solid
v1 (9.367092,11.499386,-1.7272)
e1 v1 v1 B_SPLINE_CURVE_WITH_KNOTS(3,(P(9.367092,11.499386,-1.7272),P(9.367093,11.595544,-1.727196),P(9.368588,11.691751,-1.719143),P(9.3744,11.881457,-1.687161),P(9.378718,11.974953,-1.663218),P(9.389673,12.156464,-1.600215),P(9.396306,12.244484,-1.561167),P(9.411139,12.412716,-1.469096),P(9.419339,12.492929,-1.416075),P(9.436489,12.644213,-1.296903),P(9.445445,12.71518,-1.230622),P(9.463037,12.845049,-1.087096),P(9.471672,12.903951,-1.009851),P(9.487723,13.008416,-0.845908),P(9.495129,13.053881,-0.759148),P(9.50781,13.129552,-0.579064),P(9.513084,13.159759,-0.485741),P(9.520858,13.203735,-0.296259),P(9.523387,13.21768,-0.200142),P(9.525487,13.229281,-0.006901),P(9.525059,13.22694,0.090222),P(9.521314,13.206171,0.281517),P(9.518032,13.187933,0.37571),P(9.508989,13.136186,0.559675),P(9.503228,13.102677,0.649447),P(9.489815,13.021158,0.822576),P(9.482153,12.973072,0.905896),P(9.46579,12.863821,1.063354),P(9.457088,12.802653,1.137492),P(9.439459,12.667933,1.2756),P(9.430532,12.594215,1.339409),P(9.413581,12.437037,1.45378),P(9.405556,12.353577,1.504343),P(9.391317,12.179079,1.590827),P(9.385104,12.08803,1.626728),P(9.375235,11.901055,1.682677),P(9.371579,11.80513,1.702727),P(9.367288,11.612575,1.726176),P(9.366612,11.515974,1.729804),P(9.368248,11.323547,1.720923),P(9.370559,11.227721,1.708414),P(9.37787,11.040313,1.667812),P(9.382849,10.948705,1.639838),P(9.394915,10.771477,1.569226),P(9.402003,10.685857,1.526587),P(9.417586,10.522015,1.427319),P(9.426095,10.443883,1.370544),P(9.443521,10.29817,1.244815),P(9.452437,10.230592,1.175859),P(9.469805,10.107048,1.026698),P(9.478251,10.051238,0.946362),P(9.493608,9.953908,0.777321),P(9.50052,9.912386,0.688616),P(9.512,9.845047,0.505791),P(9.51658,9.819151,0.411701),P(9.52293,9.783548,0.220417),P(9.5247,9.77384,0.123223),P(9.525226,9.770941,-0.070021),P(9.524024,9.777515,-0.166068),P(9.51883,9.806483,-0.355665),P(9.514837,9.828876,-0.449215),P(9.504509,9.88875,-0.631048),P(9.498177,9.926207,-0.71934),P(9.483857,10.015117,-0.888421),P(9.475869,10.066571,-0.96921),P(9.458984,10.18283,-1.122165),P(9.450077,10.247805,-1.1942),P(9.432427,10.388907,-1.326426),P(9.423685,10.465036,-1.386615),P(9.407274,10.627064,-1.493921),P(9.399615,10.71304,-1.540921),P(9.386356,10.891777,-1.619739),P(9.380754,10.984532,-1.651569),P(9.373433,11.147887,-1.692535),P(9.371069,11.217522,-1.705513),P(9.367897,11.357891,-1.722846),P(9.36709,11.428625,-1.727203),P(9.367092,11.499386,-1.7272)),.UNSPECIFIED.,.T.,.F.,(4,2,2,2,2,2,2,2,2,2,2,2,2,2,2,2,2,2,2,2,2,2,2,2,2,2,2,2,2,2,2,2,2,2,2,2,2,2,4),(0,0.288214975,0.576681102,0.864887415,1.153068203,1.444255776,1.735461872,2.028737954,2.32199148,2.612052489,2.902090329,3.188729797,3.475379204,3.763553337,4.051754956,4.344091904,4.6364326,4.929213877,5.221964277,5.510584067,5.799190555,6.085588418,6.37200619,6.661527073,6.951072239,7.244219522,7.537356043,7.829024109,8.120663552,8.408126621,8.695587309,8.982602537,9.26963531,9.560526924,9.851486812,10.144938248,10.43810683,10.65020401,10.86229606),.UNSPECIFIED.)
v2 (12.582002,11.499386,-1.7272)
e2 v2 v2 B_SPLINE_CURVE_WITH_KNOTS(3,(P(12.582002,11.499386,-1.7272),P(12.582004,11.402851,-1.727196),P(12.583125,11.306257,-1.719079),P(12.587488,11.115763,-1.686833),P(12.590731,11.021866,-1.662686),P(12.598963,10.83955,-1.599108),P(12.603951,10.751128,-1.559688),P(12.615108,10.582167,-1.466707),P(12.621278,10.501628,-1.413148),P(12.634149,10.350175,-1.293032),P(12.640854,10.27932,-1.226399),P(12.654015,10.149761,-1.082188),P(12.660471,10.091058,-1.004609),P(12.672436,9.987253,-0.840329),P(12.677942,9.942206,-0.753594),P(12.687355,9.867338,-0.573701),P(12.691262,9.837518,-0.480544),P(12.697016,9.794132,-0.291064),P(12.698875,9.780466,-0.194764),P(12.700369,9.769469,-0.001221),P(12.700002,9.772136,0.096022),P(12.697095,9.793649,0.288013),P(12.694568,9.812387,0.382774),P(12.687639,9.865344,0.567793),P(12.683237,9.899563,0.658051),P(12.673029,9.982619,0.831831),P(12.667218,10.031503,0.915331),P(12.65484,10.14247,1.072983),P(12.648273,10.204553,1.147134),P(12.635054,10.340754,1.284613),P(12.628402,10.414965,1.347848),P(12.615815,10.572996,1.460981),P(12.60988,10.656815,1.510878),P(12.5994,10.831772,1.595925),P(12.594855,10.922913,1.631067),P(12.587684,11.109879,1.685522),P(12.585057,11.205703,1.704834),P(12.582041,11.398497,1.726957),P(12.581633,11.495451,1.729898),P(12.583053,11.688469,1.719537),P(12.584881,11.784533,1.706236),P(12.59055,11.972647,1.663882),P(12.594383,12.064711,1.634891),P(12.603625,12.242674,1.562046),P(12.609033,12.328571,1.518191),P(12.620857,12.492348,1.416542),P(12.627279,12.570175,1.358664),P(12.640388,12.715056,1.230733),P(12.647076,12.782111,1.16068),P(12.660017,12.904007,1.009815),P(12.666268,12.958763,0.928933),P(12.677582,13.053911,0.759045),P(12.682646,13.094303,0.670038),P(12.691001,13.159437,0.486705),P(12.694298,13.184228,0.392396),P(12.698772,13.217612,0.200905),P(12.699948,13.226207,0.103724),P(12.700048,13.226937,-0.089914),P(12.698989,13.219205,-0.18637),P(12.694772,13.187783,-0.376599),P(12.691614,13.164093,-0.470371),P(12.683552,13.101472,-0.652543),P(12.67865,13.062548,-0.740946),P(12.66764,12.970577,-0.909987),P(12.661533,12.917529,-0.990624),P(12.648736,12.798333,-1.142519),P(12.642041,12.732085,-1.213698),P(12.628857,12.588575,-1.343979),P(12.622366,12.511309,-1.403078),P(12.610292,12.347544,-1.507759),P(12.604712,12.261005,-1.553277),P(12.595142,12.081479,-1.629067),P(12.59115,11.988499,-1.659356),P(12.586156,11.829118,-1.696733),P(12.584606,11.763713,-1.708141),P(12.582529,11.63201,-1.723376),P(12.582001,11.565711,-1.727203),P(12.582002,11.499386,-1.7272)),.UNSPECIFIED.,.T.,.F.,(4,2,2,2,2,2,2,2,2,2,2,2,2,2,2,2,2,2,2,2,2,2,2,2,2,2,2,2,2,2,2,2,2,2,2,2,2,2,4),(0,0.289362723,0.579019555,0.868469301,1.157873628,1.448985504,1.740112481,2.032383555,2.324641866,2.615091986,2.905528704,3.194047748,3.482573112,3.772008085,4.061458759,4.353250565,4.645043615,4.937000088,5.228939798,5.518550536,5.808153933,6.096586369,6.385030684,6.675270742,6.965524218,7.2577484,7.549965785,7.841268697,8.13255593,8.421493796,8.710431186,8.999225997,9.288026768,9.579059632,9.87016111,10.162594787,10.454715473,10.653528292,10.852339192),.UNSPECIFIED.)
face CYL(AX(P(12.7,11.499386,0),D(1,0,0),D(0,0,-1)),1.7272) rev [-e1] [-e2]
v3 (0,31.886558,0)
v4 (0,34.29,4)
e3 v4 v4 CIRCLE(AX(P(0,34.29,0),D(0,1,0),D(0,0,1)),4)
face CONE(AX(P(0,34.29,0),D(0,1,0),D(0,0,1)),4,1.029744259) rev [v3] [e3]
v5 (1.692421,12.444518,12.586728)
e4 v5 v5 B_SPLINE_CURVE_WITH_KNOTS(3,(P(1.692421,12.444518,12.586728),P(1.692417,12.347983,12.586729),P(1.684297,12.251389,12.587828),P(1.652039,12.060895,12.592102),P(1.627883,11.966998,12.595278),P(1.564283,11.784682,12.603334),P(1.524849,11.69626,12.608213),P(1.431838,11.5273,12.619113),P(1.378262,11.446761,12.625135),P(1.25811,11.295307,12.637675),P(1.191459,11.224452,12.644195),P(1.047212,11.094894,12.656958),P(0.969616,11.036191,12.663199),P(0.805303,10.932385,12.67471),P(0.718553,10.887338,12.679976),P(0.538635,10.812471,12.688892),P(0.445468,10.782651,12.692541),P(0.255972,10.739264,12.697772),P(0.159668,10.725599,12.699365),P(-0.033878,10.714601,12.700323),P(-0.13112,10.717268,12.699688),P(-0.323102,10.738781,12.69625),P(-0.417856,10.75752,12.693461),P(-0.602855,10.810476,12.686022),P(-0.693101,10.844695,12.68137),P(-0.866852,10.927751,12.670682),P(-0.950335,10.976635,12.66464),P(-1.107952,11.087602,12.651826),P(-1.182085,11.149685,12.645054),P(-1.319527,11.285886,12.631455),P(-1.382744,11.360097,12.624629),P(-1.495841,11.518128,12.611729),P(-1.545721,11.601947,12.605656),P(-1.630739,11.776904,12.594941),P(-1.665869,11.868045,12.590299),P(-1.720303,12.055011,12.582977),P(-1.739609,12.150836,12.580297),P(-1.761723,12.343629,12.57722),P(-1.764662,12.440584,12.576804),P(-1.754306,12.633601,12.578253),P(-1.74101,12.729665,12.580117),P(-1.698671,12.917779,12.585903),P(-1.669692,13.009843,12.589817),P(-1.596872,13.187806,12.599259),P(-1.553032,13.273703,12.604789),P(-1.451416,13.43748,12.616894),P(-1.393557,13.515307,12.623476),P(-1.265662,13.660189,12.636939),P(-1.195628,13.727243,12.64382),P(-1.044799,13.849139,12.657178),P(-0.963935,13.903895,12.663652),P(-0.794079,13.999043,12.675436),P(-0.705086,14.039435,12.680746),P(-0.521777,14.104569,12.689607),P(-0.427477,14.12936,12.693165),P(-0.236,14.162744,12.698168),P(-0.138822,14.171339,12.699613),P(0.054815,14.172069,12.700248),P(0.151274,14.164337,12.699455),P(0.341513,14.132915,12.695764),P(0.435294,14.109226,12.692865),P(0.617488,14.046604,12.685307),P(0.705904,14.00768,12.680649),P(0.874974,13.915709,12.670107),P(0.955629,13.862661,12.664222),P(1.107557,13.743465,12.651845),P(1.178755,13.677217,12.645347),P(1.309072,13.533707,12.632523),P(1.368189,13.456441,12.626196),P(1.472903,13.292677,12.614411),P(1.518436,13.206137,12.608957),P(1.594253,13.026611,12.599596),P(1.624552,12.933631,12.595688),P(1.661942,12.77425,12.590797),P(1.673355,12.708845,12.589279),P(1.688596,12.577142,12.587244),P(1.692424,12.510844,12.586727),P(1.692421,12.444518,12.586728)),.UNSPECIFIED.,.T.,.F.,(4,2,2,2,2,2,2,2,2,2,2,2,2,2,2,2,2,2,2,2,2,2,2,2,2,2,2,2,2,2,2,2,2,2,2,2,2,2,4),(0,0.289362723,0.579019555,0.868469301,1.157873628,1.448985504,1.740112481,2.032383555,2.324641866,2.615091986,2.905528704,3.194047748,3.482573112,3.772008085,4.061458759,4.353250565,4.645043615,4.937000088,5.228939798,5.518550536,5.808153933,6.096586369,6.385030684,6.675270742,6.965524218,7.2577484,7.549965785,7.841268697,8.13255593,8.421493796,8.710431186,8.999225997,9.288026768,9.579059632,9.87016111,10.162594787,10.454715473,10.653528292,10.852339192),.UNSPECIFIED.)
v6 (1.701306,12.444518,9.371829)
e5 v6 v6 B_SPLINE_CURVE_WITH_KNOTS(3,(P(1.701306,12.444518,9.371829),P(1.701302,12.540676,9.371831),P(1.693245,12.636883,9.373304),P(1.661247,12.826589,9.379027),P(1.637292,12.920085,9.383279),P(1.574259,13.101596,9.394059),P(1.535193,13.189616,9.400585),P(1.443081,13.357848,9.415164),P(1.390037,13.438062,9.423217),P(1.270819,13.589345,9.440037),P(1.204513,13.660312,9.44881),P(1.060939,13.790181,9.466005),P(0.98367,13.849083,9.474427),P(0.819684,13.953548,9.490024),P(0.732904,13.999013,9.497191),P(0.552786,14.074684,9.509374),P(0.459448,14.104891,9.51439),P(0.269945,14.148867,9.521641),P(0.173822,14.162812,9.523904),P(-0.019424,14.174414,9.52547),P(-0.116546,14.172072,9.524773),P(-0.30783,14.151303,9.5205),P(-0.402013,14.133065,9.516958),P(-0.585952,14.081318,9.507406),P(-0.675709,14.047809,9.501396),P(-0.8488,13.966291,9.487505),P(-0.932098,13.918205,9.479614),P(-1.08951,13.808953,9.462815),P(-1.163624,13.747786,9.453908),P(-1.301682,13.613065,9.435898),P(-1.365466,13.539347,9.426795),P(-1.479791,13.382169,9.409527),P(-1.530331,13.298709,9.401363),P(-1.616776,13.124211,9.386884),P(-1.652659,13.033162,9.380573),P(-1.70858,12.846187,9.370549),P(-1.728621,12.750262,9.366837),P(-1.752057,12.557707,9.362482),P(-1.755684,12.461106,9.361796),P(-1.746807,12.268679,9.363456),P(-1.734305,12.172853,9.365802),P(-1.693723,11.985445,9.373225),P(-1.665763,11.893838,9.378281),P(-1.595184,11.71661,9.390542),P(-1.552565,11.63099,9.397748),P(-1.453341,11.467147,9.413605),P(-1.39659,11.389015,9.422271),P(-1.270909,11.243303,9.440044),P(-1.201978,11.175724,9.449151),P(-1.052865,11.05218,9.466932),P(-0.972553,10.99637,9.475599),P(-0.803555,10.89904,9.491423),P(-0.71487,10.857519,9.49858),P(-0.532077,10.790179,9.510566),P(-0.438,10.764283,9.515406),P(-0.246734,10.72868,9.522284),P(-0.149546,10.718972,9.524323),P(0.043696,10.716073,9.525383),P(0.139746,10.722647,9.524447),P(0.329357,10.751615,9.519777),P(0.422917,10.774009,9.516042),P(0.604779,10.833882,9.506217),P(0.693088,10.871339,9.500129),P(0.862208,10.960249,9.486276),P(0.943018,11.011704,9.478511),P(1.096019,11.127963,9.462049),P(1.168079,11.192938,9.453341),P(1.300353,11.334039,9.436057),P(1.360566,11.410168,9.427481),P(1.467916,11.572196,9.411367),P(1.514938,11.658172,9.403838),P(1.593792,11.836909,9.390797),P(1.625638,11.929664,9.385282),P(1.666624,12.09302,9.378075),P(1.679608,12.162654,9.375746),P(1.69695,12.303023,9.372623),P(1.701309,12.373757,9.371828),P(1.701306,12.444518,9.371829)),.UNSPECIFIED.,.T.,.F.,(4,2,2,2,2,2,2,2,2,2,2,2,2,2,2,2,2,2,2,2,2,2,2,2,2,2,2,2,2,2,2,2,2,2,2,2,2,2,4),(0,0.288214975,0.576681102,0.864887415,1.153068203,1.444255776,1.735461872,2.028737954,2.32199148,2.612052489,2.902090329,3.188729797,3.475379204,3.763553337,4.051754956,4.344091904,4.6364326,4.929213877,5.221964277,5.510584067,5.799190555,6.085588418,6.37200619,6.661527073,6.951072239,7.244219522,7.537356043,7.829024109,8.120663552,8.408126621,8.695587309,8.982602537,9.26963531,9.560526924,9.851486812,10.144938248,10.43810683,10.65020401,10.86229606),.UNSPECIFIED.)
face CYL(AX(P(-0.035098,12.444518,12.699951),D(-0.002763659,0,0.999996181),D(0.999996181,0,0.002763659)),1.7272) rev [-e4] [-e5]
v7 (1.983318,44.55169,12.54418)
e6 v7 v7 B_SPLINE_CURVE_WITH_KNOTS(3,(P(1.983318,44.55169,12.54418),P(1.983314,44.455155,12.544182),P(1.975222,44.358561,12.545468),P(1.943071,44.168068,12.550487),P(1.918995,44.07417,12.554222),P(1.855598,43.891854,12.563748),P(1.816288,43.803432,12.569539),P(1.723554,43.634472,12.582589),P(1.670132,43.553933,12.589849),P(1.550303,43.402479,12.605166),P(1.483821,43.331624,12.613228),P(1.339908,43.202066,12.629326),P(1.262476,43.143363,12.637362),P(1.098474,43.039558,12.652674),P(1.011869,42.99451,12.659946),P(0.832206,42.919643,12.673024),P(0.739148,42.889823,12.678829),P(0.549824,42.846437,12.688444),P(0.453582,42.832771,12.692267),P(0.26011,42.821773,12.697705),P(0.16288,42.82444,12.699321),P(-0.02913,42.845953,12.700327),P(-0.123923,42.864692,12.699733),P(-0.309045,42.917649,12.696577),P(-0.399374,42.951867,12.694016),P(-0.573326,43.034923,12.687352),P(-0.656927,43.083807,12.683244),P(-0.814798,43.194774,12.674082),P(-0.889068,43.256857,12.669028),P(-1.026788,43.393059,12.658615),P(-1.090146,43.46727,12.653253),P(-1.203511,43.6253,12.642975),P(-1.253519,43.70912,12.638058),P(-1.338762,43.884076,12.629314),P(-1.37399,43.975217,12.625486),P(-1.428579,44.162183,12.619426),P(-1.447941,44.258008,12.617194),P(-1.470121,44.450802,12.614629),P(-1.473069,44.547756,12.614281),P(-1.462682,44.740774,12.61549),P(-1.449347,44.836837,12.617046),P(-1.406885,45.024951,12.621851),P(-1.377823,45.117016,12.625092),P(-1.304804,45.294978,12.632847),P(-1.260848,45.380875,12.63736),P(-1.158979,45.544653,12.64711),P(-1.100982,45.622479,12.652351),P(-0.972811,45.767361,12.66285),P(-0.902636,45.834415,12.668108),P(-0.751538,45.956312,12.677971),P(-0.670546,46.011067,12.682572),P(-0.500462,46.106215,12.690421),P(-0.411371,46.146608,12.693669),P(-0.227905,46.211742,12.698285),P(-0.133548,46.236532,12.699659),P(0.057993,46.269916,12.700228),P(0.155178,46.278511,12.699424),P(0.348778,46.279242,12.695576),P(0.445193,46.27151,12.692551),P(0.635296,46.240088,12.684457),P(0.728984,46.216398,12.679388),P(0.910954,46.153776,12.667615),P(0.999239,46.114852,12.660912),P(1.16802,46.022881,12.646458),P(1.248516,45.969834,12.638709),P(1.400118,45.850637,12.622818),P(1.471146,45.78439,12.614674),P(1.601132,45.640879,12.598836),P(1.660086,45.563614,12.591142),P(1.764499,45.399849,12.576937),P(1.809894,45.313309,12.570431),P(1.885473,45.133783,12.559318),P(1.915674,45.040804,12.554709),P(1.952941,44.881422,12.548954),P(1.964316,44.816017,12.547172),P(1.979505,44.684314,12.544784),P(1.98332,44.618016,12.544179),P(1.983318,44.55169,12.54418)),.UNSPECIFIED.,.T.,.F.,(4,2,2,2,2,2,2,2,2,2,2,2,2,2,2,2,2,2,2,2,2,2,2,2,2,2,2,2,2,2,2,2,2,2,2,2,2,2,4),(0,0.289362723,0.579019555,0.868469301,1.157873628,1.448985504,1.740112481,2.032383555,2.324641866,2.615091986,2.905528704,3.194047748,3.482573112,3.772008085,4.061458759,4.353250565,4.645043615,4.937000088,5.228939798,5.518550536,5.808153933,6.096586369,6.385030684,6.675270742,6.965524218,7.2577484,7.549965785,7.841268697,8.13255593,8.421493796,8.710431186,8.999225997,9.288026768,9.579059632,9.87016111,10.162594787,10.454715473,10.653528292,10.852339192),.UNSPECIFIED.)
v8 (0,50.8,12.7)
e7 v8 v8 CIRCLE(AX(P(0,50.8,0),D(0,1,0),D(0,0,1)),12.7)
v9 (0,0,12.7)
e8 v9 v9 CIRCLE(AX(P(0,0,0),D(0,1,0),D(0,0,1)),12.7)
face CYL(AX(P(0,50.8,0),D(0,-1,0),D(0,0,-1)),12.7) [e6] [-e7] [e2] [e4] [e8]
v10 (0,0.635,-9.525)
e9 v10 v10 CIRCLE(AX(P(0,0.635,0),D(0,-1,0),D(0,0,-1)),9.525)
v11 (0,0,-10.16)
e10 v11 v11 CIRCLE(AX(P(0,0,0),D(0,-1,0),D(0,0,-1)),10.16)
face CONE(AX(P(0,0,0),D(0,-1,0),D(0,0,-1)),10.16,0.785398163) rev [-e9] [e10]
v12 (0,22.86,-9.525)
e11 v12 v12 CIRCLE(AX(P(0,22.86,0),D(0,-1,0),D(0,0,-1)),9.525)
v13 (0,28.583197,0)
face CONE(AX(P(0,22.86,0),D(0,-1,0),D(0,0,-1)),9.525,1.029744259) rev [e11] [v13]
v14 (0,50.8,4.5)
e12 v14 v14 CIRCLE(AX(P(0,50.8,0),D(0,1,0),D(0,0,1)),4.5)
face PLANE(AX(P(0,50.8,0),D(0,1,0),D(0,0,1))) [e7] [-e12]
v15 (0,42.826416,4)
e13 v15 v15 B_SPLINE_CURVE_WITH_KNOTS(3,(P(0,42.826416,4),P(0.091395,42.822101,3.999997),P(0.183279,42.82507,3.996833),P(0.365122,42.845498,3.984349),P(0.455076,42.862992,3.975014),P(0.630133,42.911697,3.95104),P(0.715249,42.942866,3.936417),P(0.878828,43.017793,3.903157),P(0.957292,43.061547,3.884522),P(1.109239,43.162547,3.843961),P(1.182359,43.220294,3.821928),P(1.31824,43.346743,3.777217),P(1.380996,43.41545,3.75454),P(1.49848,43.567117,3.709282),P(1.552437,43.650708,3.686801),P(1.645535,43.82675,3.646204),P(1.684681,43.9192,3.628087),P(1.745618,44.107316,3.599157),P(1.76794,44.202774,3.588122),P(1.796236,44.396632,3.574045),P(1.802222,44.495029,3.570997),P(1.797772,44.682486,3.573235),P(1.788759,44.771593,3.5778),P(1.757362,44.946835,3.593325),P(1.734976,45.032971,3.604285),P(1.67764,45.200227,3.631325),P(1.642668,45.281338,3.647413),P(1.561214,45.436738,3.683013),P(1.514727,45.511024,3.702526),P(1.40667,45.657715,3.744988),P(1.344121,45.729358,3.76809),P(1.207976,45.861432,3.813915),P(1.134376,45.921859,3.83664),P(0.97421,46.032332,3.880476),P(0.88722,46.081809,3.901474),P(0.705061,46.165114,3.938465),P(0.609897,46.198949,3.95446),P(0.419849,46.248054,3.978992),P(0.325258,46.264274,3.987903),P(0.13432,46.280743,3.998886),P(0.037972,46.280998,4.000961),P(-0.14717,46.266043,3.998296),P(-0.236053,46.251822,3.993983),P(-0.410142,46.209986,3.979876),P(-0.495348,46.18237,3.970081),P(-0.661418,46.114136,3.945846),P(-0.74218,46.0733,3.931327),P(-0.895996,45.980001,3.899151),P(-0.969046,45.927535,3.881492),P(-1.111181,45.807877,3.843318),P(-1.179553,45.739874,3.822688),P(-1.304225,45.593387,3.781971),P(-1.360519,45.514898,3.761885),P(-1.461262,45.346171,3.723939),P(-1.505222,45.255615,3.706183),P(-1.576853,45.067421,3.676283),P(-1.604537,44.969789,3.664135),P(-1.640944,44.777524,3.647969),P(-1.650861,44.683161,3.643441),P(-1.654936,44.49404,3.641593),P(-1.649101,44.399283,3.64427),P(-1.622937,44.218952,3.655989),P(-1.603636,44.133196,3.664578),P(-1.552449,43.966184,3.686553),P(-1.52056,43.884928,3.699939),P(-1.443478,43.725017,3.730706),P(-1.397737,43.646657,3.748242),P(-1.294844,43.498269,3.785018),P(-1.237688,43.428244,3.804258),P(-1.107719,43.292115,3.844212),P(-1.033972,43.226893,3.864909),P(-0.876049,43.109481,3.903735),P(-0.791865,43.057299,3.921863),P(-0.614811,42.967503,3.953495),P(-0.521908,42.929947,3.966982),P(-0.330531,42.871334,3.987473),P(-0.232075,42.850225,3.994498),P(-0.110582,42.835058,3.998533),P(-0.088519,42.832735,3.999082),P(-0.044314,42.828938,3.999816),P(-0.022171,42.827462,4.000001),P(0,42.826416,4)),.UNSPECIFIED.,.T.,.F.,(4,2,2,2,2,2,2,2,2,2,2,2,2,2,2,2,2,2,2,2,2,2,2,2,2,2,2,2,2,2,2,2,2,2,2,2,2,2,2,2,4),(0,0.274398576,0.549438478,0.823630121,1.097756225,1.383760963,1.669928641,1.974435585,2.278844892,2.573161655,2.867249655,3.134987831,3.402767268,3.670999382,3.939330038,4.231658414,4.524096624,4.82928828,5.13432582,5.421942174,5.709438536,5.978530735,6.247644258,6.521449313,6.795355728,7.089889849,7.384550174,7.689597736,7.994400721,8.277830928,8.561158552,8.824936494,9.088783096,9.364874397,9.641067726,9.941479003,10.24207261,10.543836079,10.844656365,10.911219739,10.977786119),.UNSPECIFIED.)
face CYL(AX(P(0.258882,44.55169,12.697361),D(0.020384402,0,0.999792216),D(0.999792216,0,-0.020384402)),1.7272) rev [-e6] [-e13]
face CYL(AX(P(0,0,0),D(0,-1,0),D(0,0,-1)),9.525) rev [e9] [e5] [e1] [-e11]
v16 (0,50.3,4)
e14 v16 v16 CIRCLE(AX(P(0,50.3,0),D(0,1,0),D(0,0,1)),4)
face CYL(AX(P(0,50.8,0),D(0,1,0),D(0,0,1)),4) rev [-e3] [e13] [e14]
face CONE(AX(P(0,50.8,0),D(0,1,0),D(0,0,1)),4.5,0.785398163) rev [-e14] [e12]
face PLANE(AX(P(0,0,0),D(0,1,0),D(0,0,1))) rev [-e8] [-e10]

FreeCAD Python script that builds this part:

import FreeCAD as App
import Part
import Sketcher

V = App.Vector
Q = App.Units.Quantity

doc = App.newDocument("Part")
body = doc.addObject("PartDesign::Body", "Body")

# Sketch on XZ plane
sketch1 = body.newObject("Sketcher::SketchObject", "Sketch")
sketch1.AttachmentSupport = (doc.getObject("XZ_Plane"), [""])
sketch1.MapMode = "FlatFace"
sketch1.addGeometry(Part.Circle(V(0, 0, 0), V(0, 0, 1), 13), False)
sketch1.addConstraint([
    Sketcher.Constraint("Coincident", 0, 3, -1, 1),
    Sketcher.Constraint("Diameter", 0, Q("1 in")),
])
pad1 = body.newObject("PartDesign::Pad", "Pad")
pad1.Profile = sketch1
pad1.Length = Q("2 in")
pad1.Reversed = True

# Sketch on XZ plane
sketch2 = body.newObject("Sketcher::SketchObject", "Sketch001")
sketch2.AttachmentSupport = (doc.getObject("XZ_Plane"), [""])
sketch2.MapMode = "FlatFace"
sketch2.AttachmentOffset = App.Placement(V(0, 0, -2 * 25.4), App.Rotation())
sketch2.addGeometry(Part.Circle(V(0, 0, 0), V(0, 0, 1), 4), False)
sketch2.addConstraint([
    Sketcher.Constraint("Coincident", 0, 3, -1, 1),
    Sketcher.Constraint("Diameter", 0, Q("8 mm")),
])
doc.recompute()
hole = body.newObject("PartDesign::Hole", "Hole")
hole.Profile = sketch2
hole.ThreadType = "None"
hole.Diameter = 8
hole.DepthType = "Dimension"
hole.Depth = Q("0.65 in")
hole.DrillPoint = "Angled"
hole.DrillPointAngle = 118
hole.HoleCutType = "Countersink"
hole.HoleCutDiameter = 9
hole.HoleCutCountersinkAngle = 90
hole.Reversed = True

# Sketch on an angled plane
sketch3 = body.newObject("Sketcher::SketchObject", "Sketch002")
sketch3.Placement = App.Placement(V(0.258882, 44.55169, 12.697361), App.Rotation(V(0.999792216, 0, -0.020384402), V(0, 0.999999999, 0), V(0.020384402, 0, 0.999792216), "ZXY"))
sketch3.addGeometry(Part.Circle(V(0, 0, 0), V(0, 0, 1), 1.7), False)
sketch3.addConstraint([
    Sketcher.Constraint("Coincident", 0, 3, -1, 1),
    Sketcher.Constraint("Diameter", 0, Q("0.136 in")),
])
pocket1 = body.newObject("PartDesign::Pocket", "Pocket")
pocket1.Profile = sketch3
pocket1.Type = "UpToFirst"

# Sketch on XZ plane
sketch4 = body.newObject("Sketcher::SketchObject", "Sketch003")
sketch4.AttachmentSupport = (doc.getObject("XZ_Plane"), [""])
sketch4.MapMode = "FlatFace"
sketch4.addGeometry(Part.Circle(V(0, 0, 0), V(0, 0, 1), 10), False)
sketch4.addConstraint([
    Sketcher.Constraint("Coincident", 0, 3, -1, 1),
    Sketcher.Constraint("Diameter", 0, Q("0.75 in")),
])
doc.recompute()
hole2 = body.newObject("PartDesign::Hole", "Hole001")
hole2.Profile = sketch4
hole2.ThreadType = "None"
hole2.Diameter = Q("0.75 in")
hole2.DepthType = "Dimension"
hole2.Depth = Q("0.9 in")
hole2.DrillPoint = "Angled"
hole2.DrillPointAngle = 118
hole2.HoleCutType = "Countersink"
hole2.HoleCutDiameter = Q("0.8 in")
hole2.HoleCutCountersinkAngle = 90

# Sketch on an angled plane
sketch5 = body.newObject("Sketcher::SketchObject", "Sketch004")
sketch5.Placement = App.Placement(V(-0.035098, 12.444518, 12.699951), App.Rotation(V(0.999996181, 0, 0.002763659), V(0, 1, 0), V(-0.002763659, 0, 0.999996181), "ZXY"))
sketch5.addGeometry(Part.Circle(V(0, 0, 0), V(0, 0, 1), 1.7), False)
sketch5.addConstraint([
    Sketcher.Constraint("Coincident", 0, 3, -1, 1),
    Sketcher.Constraint("Diameter", 0, Q("0.136 in")),
])
pocket2 = body.newObject("PartDesign::Pocket", "Pocket001")
pocket2.Profile = sketch5
pocket2.Type = "UpToFirst"

# Sketch on YZ plane
sketch6 = body.newObject("Sketcher::SketchObject", "Sketch005")
sketch6.AttachmentSupport = (doc.getObject("YZ_Plane"), [""])
sketch6.MapMode = "FlatFace"
sketch6.AttachmentOffset = App.Placement(V(0, 0, 0.5 * 25.4), App.Rotation())
sketch6.addGeometry(Part.Circle(V(11.5, 0, 0), V(0, 0, 1), 1.7), False)
sketch6.addConstraint([
    Sketcher.Constraint("PointOnObject", 0, 3, -1),
    Sketcher.Constraint("Diameter", 0, Q("0.136 in")),
    Sketcher.Constraint("DistanceX", -1, 1, 0, 3, Q("11.499386 mm")),
])
pocket3 = body.newObject("PartDesign::Pocket", "Pocket002")
pocket3.Profile = sketch6
pocket3.Type = "UpToFirst"

doc.recompute()
